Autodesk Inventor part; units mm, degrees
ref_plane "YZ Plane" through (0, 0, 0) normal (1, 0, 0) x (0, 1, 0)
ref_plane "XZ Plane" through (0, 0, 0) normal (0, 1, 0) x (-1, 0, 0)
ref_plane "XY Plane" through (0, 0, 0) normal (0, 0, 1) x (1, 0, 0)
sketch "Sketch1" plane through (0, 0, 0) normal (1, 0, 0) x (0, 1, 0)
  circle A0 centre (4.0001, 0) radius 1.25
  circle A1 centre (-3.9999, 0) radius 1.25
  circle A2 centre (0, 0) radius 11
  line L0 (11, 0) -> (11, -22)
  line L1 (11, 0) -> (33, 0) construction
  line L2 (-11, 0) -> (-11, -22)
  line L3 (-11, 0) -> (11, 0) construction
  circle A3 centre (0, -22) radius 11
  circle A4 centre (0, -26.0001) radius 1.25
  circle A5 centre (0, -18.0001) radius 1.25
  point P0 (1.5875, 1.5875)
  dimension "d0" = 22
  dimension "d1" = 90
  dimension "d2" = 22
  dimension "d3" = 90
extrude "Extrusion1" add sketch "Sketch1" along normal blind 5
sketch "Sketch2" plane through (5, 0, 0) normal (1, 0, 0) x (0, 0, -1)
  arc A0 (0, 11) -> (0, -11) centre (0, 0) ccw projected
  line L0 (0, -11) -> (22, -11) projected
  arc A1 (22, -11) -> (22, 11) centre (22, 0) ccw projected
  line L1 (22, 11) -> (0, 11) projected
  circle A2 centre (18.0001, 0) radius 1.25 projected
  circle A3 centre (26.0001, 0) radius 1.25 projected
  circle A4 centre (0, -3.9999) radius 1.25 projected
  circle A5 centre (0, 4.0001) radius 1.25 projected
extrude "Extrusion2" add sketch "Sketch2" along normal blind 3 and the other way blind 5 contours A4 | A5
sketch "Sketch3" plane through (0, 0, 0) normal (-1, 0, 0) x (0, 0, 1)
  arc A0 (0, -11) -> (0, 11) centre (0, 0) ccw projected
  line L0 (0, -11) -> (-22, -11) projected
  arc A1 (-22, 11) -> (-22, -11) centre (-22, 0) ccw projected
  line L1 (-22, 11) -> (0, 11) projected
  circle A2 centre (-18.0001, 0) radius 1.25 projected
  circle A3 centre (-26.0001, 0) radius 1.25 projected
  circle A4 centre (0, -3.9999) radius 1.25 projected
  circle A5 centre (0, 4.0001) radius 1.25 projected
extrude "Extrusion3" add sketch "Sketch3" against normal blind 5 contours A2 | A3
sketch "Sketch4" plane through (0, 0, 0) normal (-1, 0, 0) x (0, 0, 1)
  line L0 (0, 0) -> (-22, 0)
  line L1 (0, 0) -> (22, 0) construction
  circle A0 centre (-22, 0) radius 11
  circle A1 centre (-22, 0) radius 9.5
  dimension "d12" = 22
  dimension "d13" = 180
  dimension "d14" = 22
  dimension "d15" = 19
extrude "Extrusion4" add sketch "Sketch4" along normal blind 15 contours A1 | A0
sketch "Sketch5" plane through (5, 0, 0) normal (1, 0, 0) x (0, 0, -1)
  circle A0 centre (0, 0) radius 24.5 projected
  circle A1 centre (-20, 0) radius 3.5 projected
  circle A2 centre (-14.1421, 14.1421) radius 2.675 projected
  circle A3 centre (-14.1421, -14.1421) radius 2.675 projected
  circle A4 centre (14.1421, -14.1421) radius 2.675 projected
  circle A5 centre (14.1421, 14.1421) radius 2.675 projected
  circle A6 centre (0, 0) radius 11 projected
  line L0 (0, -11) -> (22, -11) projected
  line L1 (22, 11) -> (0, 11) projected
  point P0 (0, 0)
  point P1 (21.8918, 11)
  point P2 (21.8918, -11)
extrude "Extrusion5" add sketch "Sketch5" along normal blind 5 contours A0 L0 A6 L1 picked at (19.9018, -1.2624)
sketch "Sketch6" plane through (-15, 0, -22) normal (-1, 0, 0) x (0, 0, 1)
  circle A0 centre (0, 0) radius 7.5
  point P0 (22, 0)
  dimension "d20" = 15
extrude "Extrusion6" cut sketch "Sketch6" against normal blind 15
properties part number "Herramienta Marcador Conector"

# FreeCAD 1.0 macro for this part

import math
import FreeCAD as App
import Part
import Sketcher

V = App.Vector

doc = App.newDocument("Part")
body = doc.addObject("PartDesign::Body", "Body")

sketch1 = doc.addObject("Sketcher::SketchObject", "Sketch")
body.addObject(sketch1)
sketch1.AttachmentSupport = (doc.YZ_Plane, [""])
sketch1.MapMode = "FlatFace"
sketch1.addGeometry([
    Part.ArcOfCircle(Part.Circle(V(0, 0, 0), V(0, 0, 1), 11), math.radians(0), math.radians(180)),
    Part.LineSegment(V(-11, 0, 0), V(-11, -22, 0)),
    Part.ArcOfCircle(Part.Circle(V(0, -22, 0), V(0, 0, 1), 11), math.radians(180), math.radians(360)),
    Part.LineSegment(V(11, -22, 0), V(11, 0, 0)),
    Part.Circle(V(-3.9999, 0, 0), V(0, 0, 1), 1.25),
    Part.Circle(V(4.0001, 0, 0), V(0, 0, 1), 1.25),
    Part.Circle(V(0, -18.0001, 0), V(0, 0, 1), 1.25),
    Part.Circle(V(0, -26.0001, 0), V(0, 0, 1), 1.25),
], False)
sketch1.addConstraint([
    Sketcher.Constraint("Tangent", 0, 2, 1, 1),
    Sketcher.Constraint("Tangent", 1, 2, 2, 1),
    Sketcher.Constraint("Tangent", 2, 2, 3, 1),
    Sketcher.Constraint("Tangent", 3, 2, 0, 1),
    Sketcher.Constraint("Vertical", 1),
    Sketcher.Constraint("Vertical", 3),
    Sketcher.Constraint("Coincident", 0, 3, -1, 1),
    Sketcher.Constraint("Equal", 4, 5),
    Sketcher.Constraint("Equal", 5, 6),
    Sketcher.Constraint("Equal", 6, 7),
    Sketcher.Constraint("Symmetric", 4, 3, 5, 3, -1, 1),
    Sketcher.Constraint("PointOnObject", 4, 3, -1),
    Sketcher.Constraint("PointOnObject", 6, 3, -2),
    Sketcher.Constraint("PointOnObject", 7, 3, -2),
    Sketcher.Constraint("Radius", 0, 11.0),
    Sketcher.Constraint("DistanceY", 1, 2, 1, 1, 22.0),
    Sketcher.Constraint("Diameter", 4, 2.5),
    Sketcher.Constraint("DistanceX", 4, 3, -1, 1, 4.0),
    Sketcher.Constraint("DistanceY", 6, 3, -1, 1, 18.0),
    Sketcher.Constraint("DistanceY", 7, 3, -1, 1, 26.0),
])
pad1 = doc.addObject("PartDesign::Pad", "Pad")
body.addObject(pad1)
pad1.Profile = sketch1
pad1.Length = 5

sketch2 = doc.addObject("Sketcher::SketchObject", "Sketch001")
body.addObject(sketch2)
sketch2.AttachmentSupport = (doc.YZ_Plane, [""])
sketch2.MapMode = "FlatFace"
sketch2.AttachmentOffset = App.Placement(V(0, 0, 5), App.Rotation())
sketch2.addGeometry([
    Part.Circle(V(-3.9999, 0, 0), V(0, 0, 1), 1.25),
    Part.Circle(V(4.0001, 0, 0), V(0, 0, 1), 1.25),
], False)
sketch2.addConstraint([
    Sketcher.Constraint("Equal", 0, 1),
    Sketcher.Constraint("Symmetric", 0, 3, 1, 3, -1, 1),
    Sketcher.Constraint("PointOnObject", 0, 3, -1),
    Sketcher.Constraint("Diameter", 0, 2.5),
    Sketcher.Constraint("DistanceX", 0, 3, -1, 1, 4.0),
])
pad2 = doc.addObject("PartDesign::Pad", "Pad001")
body.addObject(pad2)
pad2.Profile = sketch2
pad2.Type = "TwoLengths"
pad2.Length = 3
pad2.Length2 = 5

sketch3 = doc.addObject("Sketcher::SketchObject", "Sketch002")
body.addObject(sketch3)
sketch3.AttachmentSupport = (doc.YZ_Plane, [""])
sketch3.MapMode = "FlatFace"
sketch3.addGeometry([
    Part.Circle(V(0, -18.0001, 0), V(0, 0, 1), 1.25),
    Part.Circle(V(0, -26.0001, 0), V(0, 0, 1), 1.25),
], False)
sketch3.addConstraint([
    Sketcher.Constraint("Equal", 0, 1),
    Sketcher.Constraint("PointOnObject", 0, 3, -2),
    Sketcher.Constraint("PointOnObject", 1, 3, -2),
    Sketcher.Constraint("Diameter", 0, 2.5),
    Sketcher.Constraint("DistanceY", 0, 3, -1, 1, 18.0),
    Sketcher.Constraint("DistanceY", 1, 3, -1, 1, 26.0),
])
pad3 = doc.addObject("PartDesign::Pad", "Pad002")
body.addObject(pad3)
pad3.Profile = sketch3
pad3.Length = 5

sketch4 = doc.addObject("Sketcher::SketchObject", "Sketch003")
body.addObject(sketch4)
sketch4.AttachmentSupport = (doc.YZ_Plane, [""])
sketch4.MapMode = "FlatFace"
sketch4.addGeometry(Part.Circle(V(0, -22, 0), V(0, 0, 1), 11), False)
sketch4.addConstraint([
    Sketcher.Constraint("PointOnObject", 0, 3, -2),
    Sketcher.Constraint("Diameter", 0, 22.0),
    Sketcher.Constraint("DistanceY", 0, 3, -1, 1, 22.0),
])
pad4 = doc.addObject("PartDesign::Pad", "Pad003")
body.addObject(pad4)
pad4.Profile = sketch4
pad4.Length = 15
pad4.Reversed = True

sketch5 = doc.addObject("Sketcher::SketchObject", "Sketch004")
body.addObject(sketch5)
sketch5.AttachmentSupport = (doc.YZ_Plane, [""])
sketch5.MapMode = "FlatFace"
sketch5.AttachmentOffset = App.Placement(V(0, 0, 5), App.Rotation())
sketch5.addGeometry([
    Part.ArcOfCircle(Part.Circle(V(0, 0, 0), V(0, 0, 1), 24.5), math.radians(-116.678234), math.radians(-63.321766)),
    Part.LineSegment(V(11, -21.891779, 0), V(11, 0, 0)),
    Part.ArcOfCircle(Part.Circle(V(0, 0, 0), V(0, 0, 1), 11), math.radians(180), math.radians(360)),
    Part.LineSegment(V(-11, 0, 0), V(-11, -21.891779, 0)),
], False)
sketch5.addConstraint([
    Sketcher.Constraint("Coincident", 0, 2, 1, 1),
    Sketcher.Constraint("Tangent", 1, 2, 2, 2),
    Sketcher.Constraint("Tangent", 2, 1, 3, 1),
    Sketcher.Constraint("Coincident", 3, 2, 0, 1),
    Sketcher.Constraint("Vertical", 1),
    Sketcher.Constraint("Vertical", 3),
    Sketcher.Constraint("Coincident", 0, 3, -1, 1),
    Sketcher.Constraint("Coincident", 2, 3, -1, 1),
    Sketcher.Constraint("Radius", 2, 11.0),
    Sketcher.Constraint("Radius", 0, 24.5),
])
pad5 = doc.addObject("PartDesign::Pad", "Pad004")
body.addObject(pad5)
pad5.Profile = sketch5
pad5.Length = 5

sketch6 = doc.addObject("Sketcher::SketchObject", "Sketch005")
body.addObject(sketch6)
sketch6.AttachmentSupport = (doc.YZ_Plane, [""])
sketch6.MapMode = "FlatFace"
sketch6.AttachmentOffset = App.Placement(V(0, 0, -15), App.Rotation())
sketch6.addGeometry(Part.Circle(V(0, -22, 0), V(0, 0, 1), 7.5), False)
sketch6.addConstraint([
    Sketcher.Constraint("PointOnObject", 0, 3, -2),
    Sketcher.Constraint("Diameter", 0, 15.0),
    Sketcher.Constraint("DistanceY", 0, 3, -1, 1, 22.0),
])
pocket1 = doc.addObject("PartDesign::Pocket", "Pocket")
body.addObject(pocket1)
pocket1.Profile = sketch6
pocket1.Length = 15
pocket1.Reversed = True

doc.recompute()
